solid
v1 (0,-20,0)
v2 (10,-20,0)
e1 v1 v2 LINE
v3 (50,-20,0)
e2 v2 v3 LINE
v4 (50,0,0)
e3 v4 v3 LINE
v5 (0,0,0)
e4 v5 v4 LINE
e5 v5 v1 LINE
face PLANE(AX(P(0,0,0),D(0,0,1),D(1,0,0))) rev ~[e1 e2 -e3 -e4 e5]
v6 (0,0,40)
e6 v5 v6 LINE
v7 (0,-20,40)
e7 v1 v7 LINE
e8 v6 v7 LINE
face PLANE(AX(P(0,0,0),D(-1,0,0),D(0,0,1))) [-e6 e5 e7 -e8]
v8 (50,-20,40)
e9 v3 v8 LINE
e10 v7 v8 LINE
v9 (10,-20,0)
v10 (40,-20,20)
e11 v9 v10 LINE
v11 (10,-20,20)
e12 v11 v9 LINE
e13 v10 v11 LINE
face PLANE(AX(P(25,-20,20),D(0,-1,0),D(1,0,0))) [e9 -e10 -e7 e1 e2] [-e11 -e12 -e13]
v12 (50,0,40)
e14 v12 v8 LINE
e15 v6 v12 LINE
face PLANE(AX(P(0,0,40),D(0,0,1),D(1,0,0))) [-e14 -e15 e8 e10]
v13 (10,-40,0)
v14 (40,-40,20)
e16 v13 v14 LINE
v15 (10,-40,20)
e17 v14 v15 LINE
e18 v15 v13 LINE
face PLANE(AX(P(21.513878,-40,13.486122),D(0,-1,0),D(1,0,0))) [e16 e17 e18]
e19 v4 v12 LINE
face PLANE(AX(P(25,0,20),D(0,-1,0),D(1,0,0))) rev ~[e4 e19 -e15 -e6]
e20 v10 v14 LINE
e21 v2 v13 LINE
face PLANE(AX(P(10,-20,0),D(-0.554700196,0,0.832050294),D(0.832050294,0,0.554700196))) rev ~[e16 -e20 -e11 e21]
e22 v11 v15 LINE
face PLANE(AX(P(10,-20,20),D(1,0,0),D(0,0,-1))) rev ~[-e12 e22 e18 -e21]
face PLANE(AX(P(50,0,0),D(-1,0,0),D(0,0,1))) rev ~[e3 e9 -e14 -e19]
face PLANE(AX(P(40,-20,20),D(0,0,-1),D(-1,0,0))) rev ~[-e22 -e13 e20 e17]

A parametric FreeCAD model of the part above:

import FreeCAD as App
import Part
import Sketcher
Q = App.Units.Quantity

doc = App.newDocument("Part")
body = doc.addObject("PartDesign::Body", "Body")

sketch1 = body.newObject("Sketcher::SketchObject", "Sketch")
sketch1.AttachmentSupport = (doc.getObject("XZ_Plane"), [""])
sketch1.MapMode = "FlatFace"
sketch1.addGeometry([
    Part.LineSegment(App.Vector(0, 40, 0), App.Vector(0, 0, 0)),
    Part.LineSegment(App.Vector(0, 0, 0), App.Vector(50, 0, 0)),
    Part.LineSegment(App.Vector(50, 0, 0), App.Vector(50, 40, 0)),
    Part.LineSegment(App.Vector(50, 40, 0), App.Vector(0, 40, 0)),
], False)
sketch1.addConstraint([
    Sketcher.Constraint("Coincident", 0, 2, 1, 1),
    Sketcher.Constraint("Coincident", 1, 2, 2, 1),
    Sketcher.Constraint("Coincident", 2, 2, 3, 1),
    Sketcher.Constraint("Coincident", 3, 2, 0, 1),
    Sketcher.Constraint("Vertical", 0),
    Sketcher.Constraint("Horizontal", 1),
    Sketcher.Constraint("Vertical", 2),
    Sketcher.Constraint("Horizontal", 3),
    Sketcher.Constraint("Coincident", 0, 2, -1, 1),
    Sketcher.Constraint("DistanceX", 1, 1, 1, 2, Q("50 mm")),
    Sketcher.Constraint("DistanceY", 0, 2, 0, 1, Q("40 mm")),
])
pad1 = body.newObject("PartDesign::Pad", "Pad")
pad1.Profile = sketch1
pad1.Length = 20

sketch2 = body.newObject("Sketcher::SketchObject", "Sketch001")
sketch2.AttachmentSupport = (doc.getObject("XZ_Plane"), [""])
sketch2.MapMode = "FlatFace"
sketch2.AttachmentOffset = App.Placement(App.Vector(0, 0, 20), App.Rotation())
sketch2.addGeometry([
    Part.LineSegment(App.Vector(10, 20, 0), App.Vector(10, 0, 0)),
    Part.LineSegment(App.Vector(10, 0, 0), App.Vector(40, 20, 0)),
    Part.LineSegment(App.Vector(40, 20, 0), App.Vector(10, 20, 0)),
], False)
sketch2.addConstraint([
    Sketcher.Constraint("Coincident", 0, 2, 1, 1),
    Sketcher.Constraint("Coincident", 1, 2, 2, 1),
    Sketcher.Constraint("Coincident", 2, 2, 0, 1),
    Sketcher.Constraint("Vertical", 0),
    Sketcher.Constraint("Horizontal", 2),
    Sketcher.Constraint("PointOnObject", 0, 2, -1),
    Sketcher.Constraint("DistanceX", 2, 2, 2, 1, Q("30 mm")),
    Sketcher.Constraint("DistanceY", 0, 2, 0, 1, Q("20 mm")),
    Sketcher.Constraint("DistanceX", -1, 1, 0, 2, Q("10 mm")),
])
pad2 = body.newObject("PartDesign::Pad", "Pad001")
pad2.Profile = sketch2
pad2.Length = 20

doc.recompute()
